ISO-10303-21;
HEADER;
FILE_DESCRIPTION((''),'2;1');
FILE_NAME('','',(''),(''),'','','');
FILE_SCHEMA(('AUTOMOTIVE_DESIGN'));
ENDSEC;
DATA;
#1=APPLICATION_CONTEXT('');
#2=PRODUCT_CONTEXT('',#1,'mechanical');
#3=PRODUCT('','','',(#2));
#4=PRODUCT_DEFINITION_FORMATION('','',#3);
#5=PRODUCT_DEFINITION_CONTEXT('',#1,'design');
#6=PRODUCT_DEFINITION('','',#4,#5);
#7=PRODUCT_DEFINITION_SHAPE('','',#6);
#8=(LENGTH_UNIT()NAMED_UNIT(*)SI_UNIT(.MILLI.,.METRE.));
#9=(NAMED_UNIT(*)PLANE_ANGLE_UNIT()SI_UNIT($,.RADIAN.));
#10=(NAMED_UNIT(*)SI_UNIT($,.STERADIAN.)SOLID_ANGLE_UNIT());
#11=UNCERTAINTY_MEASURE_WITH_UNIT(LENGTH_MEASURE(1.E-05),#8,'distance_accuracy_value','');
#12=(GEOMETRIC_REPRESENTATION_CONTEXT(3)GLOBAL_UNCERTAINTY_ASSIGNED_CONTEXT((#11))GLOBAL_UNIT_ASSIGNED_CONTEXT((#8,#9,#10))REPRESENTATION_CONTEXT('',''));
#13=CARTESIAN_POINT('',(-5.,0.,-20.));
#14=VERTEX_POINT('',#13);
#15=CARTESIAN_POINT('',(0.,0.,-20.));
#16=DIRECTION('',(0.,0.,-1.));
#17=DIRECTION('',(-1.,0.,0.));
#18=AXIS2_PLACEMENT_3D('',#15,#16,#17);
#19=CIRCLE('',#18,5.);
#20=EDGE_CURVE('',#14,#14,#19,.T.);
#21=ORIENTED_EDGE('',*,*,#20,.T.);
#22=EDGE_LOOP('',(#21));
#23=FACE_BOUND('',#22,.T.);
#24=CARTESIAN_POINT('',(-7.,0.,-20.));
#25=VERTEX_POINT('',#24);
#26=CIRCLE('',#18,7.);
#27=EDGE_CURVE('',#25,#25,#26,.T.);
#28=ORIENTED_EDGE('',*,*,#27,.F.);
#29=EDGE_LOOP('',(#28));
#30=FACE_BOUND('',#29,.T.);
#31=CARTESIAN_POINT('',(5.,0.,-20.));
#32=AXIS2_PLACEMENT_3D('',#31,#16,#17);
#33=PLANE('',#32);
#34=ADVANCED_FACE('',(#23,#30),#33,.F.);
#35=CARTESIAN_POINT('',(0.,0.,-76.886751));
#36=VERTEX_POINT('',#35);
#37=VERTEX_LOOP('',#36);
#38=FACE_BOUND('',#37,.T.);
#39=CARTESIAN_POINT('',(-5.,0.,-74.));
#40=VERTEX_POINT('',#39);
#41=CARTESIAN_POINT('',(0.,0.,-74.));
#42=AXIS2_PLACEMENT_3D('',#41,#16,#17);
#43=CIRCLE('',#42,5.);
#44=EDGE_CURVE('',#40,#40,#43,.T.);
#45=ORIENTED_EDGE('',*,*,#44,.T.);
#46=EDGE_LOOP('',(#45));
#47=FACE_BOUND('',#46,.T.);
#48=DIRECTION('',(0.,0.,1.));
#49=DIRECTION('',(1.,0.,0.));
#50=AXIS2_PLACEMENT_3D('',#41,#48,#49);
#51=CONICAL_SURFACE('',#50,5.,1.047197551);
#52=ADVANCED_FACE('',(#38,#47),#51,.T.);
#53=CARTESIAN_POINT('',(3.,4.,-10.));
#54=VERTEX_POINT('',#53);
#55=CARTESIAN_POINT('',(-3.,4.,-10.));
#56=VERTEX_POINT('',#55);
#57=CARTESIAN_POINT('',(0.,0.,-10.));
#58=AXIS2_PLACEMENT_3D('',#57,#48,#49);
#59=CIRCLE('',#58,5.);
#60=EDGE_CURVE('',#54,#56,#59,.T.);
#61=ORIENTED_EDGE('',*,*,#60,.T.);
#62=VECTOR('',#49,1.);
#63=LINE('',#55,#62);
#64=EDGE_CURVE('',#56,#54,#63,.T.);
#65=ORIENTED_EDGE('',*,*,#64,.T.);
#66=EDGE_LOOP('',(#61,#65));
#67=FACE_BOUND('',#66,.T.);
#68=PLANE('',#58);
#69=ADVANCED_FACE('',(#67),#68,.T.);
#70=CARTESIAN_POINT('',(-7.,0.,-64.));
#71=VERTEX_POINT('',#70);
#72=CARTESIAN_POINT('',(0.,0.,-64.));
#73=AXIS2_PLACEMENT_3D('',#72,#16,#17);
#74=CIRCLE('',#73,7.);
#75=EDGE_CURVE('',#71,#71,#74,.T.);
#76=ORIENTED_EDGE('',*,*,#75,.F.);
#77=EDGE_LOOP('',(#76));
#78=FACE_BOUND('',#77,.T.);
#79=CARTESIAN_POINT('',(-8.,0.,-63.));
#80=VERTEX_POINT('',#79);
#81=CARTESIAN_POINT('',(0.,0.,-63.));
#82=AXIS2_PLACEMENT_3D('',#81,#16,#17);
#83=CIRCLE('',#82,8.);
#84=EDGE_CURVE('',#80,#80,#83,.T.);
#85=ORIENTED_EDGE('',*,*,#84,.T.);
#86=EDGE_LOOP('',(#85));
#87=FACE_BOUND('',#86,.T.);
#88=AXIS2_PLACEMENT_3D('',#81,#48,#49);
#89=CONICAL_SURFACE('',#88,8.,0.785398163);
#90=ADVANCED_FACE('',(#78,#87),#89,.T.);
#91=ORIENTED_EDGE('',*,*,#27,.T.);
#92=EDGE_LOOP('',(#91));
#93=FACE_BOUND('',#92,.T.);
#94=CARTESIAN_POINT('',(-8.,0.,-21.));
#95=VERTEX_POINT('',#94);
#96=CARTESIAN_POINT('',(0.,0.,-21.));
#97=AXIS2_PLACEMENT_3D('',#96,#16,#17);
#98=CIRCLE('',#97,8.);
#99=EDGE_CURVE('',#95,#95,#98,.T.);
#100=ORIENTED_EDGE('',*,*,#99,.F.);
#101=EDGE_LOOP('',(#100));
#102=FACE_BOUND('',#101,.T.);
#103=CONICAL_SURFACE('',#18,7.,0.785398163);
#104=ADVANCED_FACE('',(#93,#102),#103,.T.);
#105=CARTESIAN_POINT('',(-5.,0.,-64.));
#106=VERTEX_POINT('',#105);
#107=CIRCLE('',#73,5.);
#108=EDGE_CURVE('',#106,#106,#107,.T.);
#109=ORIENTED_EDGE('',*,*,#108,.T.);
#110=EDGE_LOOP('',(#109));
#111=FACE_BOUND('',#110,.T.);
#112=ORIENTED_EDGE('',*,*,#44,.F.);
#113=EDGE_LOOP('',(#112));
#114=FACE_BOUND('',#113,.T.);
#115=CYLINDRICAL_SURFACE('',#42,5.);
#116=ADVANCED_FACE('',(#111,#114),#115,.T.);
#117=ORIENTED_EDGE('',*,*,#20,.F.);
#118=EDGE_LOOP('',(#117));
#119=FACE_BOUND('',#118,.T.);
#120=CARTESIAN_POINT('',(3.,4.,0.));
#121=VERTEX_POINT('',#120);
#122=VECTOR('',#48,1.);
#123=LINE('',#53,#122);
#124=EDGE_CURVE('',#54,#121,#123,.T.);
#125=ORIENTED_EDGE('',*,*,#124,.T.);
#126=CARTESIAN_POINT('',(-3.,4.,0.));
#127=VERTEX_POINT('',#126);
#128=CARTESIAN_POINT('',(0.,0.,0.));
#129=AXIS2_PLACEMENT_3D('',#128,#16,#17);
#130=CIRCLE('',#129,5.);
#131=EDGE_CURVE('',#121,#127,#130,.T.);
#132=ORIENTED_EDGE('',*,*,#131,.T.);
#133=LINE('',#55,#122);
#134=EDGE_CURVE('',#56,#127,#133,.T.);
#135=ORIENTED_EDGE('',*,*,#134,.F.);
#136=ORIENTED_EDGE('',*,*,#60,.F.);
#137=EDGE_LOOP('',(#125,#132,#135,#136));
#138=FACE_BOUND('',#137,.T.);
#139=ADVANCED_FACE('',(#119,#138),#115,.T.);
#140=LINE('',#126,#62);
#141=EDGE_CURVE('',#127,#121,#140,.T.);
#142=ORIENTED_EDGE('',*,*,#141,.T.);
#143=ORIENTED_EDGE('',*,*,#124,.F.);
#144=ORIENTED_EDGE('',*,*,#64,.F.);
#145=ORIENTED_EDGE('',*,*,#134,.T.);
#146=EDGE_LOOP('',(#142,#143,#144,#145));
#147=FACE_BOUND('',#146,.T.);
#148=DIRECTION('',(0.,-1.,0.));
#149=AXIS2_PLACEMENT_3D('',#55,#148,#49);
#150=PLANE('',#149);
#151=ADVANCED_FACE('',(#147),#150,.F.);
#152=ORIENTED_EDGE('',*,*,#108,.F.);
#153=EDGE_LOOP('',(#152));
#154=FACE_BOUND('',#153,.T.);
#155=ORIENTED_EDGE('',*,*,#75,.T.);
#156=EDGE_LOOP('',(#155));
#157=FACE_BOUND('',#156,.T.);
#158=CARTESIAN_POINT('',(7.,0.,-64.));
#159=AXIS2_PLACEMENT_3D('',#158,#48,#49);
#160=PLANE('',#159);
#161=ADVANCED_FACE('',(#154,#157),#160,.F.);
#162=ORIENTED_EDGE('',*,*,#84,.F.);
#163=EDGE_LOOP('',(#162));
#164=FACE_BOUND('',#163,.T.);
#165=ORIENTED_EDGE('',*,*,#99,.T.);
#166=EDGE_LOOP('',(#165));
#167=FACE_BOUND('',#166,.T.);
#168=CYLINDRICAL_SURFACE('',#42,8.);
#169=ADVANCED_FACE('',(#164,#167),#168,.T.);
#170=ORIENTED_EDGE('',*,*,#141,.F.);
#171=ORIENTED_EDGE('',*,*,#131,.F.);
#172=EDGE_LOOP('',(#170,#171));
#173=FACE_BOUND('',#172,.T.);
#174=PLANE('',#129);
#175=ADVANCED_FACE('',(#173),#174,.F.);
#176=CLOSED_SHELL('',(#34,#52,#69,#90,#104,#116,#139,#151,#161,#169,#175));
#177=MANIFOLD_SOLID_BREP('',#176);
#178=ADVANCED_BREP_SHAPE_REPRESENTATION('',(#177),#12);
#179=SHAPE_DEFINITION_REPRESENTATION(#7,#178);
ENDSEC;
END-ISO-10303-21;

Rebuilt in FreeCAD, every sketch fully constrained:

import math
import FreeCAD as App
import Part
import Sketcher
from FreeCAD import Vector
Q = App.Units.Quantity


def add_polygon(sketch, points):
    """Adds a closed chain of lines whose ends are joined by coincident constraints."""
    first, n = sketch.GeometryCount, len(points)
    for a, b in zip(points, points[1:] + points[:1]):
        sketch.addGeometry(Part.LineSegment(App.Vector(*a, 0), App.Vector(*b, 0)), False)
    for i in range(n):
        sketch.addConstraint(Sketcher.Constraint("Coincident", first + i, 2, first + (i + 1) % n, 1))

doc = App.newDocument("Part")
body = doc.addObject("PartDesign::Body", "Body")

sketch1 = body.newObject("Sketcher::SketchObject", "Sketch")
sketch1.AttachmentSupport = (doc.getObject("XZ_Plane"), [""])
sketch1.MapMode = "FlatFace"
add_polygon(sketch1, [(0, 0), (5, 0), (5, -20), (7, -20), (8, -21), (8, -63), (7, -64), (5, -64), (5, -74), (0, -76.9)])
sketch1.addConstraint([
    Sketcher.Constraint("Horizontal", 0),
    Sketcher.Constraint("Vertical", 1),
    Sketcher.Constraint("Horizontal", 2),
    Sketcher.Constraint("Vertical", 4),
    Sketcher.Constraint("Horizontal", 6),
    Sketcher.Constraint("Vertical", 7),
    Sketcher.Constraint("Vertical", 9),
    Sketcher.Constraint("Coincident", 9, 2, -1, 1),
    Sketcher.Constraint("Perpendicular", 3, 5),
    Sketcher.Constraint("Vertical", 2, 2, 5, 2),
    Sketcher.Constraint("Vertical", 1, 2, 6, 2),
    Sketcher.Constraint("Equal", 3, 5),
    Sketcher.Constraint("DistanceX", 0, 1, 0, 2, Q("5 mm")),
    Sketcher.Constraint("DistanceX", 2, 1, 2, 2, Q("2 mm")),
    Sketcher.Constraint("DistanceY", 1, 2, 1, 1, Q("20 mm")),
    Sketcher.Constraint("DistanceY", 4, 2, 4, 1, Q("42 mm")),
    Sketcher.Constraint("DistanceY", 7, 2, 7, 1, Q("10 mm")),
    Sketcher.Constraint("Angle", 8, Q("-150 deg")),
    Sketcher.Constraint("DistanceX", -1, 1, 3, 2, Q("8 mm")),
])
revolution = body.newObject("PartDesign::Revolution", "Revolution")
revolution.Profile = sketch1
revolution.ReferenceAxis = (sketch1, ["V_Axis"])
revolution.Angle = 360

sketch2 = body.newObject("Sketcher::SketchObject", "Sketch001")
sketch2.AttachmentSupport = (doc.getObject("XY_Plane"), [""])
sketch2.MapMode = "FlatFace"
sketch2.AttachmentOffset = App.Placement(Vector(0, 0, -10), App.Rotation())
sketch2.addGeometry([
    Part.LineSegment(Vector(-3, 4, 0), Vector(3, 4, 0)),
    Part.ArcOfCircle(Part.Circle(Vector(0, 0, 0), Vector(0, 0, 1), 5), math.radians(53), math.radians(127)),
], False)
sketch2.addConstraint([
    Sketcher.Constraint("Coincident", 0, 1, 1, 2),
    Sketcher.Constraint("Coincident", 1, 1, 0, 2),
    Sketcher.Constraint("Horizontal", 0),
    Sketcher.Constraint("Coincident", 1, 3, -1, 1),
    Sketcher.Constraint("Radius", 1, Q("5 mm")),
    Sketcher.Constraint("DistanceX", 0, 1, 0, 2, Q("6 mm")),
])
pocket1 = body.newObject("PartDesign::Pocket", "Pocket")
pocket1.Profile = sketch2
pocket1.Length = 10
pocket1.Reversed = True

doc.recompute()
